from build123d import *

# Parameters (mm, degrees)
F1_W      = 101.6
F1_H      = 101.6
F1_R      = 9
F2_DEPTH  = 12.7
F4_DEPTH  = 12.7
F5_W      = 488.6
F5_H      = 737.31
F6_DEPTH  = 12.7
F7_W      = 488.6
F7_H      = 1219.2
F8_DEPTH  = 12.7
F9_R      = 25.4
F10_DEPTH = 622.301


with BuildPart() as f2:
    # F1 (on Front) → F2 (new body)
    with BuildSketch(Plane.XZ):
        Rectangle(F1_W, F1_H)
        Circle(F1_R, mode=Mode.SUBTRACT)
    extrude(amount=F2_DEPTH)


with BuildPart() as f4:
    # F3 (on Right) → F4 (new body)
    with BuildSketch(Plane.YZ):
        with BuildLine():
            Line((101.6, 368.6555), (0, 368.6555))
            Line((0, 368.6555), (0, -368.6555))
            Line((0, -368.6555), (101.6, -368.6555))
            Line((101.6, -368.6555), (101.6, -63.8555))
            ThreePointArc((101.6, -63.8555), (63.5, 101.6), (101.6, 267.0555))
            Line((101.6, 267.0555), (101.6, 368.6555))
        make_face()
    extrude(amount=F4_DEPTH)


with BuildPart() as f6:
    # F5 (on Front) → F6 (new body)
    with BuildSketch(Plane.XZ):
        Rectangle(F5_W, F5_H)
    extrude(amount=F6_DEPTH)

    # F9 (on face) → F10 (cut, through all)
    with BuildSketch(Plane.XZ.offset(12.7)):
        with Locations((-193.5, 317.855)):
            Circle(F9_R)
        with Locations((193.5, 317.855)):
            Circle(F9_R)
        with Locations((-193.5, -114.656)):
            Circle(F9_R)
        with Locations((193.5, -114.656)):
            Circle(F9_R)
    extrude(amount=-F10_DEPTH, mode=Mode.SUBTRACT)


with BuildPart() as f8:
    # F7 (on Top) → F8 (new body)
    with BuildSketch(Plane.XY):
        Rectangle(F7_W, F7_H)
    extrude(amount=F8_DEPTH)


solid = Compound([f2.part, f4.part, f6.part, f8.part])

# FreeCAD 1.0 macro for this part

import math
import FreeCAD as App
import Part
import Sketcher
Q = App.Units.Quantity

doc = App.newDocument("Part")
params = doc.addObject("Spreadsheet::Sheet", "Params")
for row, (alias, value) in enumerate([
    ("sketch1_width", "4 in"),
    ("pad1_length", "0.5 in"),
    ("sketch2_width", "4 in"),
    ("sketch2_height", "12 in"),
    ("pad2_length", "0.5 in"),
    ("pad3_length", "0.5 in"),
    ("sketch4_diameter", "2 in"),
    ("sketch5_height", "48 in"),
    ("pad4_length", "0.5 in"),
], start=1):
    params.set(f"A{row}", alias)
    params.set(f"B{row}", "=" + value)
    params.setAlias(f"B{row}", alias)

body = doc.addObject("PartDesign::Body", "Body")

# Sketch on XZ plane
sketch1 = body.newObject("Sketcher::SketchObject", "Sketch")
sketch1.AttachmentSupport = (doc.getObject("XZ_Plane"), [""])
sketch1.MapMode = "FlatFace"
sketch1.addGeometry([
    Part.LineSegment(App.Vector(-50.8, 50.8, 0), App.Vector(-50.8, -50.8, 0)),  # 0
    Part.LineSegment(App.Vector(-50.8, -50.8, 0), App.Vector(50.8, -50.8, 0)),  # 1
    Part.LineSegment(App.Vector(50.8, -50.8, 0), App.Vector(50.8, 50.8, 0)),  # 2
    Part.LineSegment(App.Vector(50.8, 50.8, 0), App.Vector(-50.8, 50.8, 0)),  # 3
    Part.Circle(App.Vector(0, 0, 0), App.Vector(0, 0, 1), 9),  # 4
], False)
sketch1.addConstraint([
    Sketcher.Constraint("Coincident", 0, 2, 1, 1),
    Sketcher.Constraint("Coincident", 1, 2, 2, 1),
    Sketcher.Constraint("Coincident", 2, 2, 3, 1),
    Sketcher.Constraint("Coincident", 3, 2, 0, 1),
    Sketcher.Constraint("Vertical", 0),
    Sketcher.Constraint("Horizontal", 1),
    Sketcher.Constraint("Vertical", 2),
    Sketcher.Constraint("Horizontal", 3),
    Sketcher.Constraint("Coincident", 4, 3, -1, 1),
    Sketcher.Constraint("Symmetric", 0, 2, 2, 2, -1, 1),
    Sketcher.Constraint("Equal", 3, 0),
    Sketcher.Constraint("DistanceX", 1, 1, 1, 2, Q("4 in")),
    Sketcher.Constraint("Diameter", 4, 18.0),
])
sketch1.setExpression("Constraints[11]", "Params.sketch1_width")
pad1 = body.newObject("PartDesign::Pad", "Pad")
pad1.Profile = sketch1
pad1.setExpression("Length", "Params.pad1_length")
body2 = doc.addObject("PartDesign::Body", "Body001")

# Sketch on YZ plane
sketch2 = body2.newObject("Sketcher::SketchObject", "Sketch001")
sketch2.AttachmentSupport = (doc.getObject("YZ_Plane001"), [""])
sketch2.MapMode = "FlatFace"
sketch2.addGeometry([
    Part.LineSegment(App.Vector(101.6, 368.6555, 0), App.Vector(0, 368.6555, 0)),  # 0
    Part.LineSegment(App.Vector(0, 368.6555, 0), App.Vector(0, -368.6555, 0)),  # 1
    Part.LineSegment(App.Vector(0, -368.6555, 0), App.Vector(101.6, -368.6555, 0)),  # 2
    Part.LineSegment(App.Vector(101.6, -368.6555, 0), App.Vector(101.6, -63.8555, 0)),  # 3
    Part.ArcOfCircle(Part.Circle(App.Vector(441.808825, 101.6, 0), App.Vector(0, 0, 1), 378.308825), math.radians(154.064718), math.radians(205.935282)),  # 4
    Part.LineSegment(App.Vector(101.6, 267.0555, 0), App.Vector(101.6, 368.6555, 0)),  # 5
], False)
sketch2.addConstraint([
    Sketcher.Constraint("Coincident", 0, 2, 1, 1),
    Sketcher.Constraint("Coincident", 1, 2, 2, 1),
    Sketcher.Constraint("Coincident", 2, 2, 3, 1),
    Sketcher.Constraint("Coincident", 3, 2, 4, 2),
    Sketcher.Constraint("Coincident", 4, 1, 5, 1),
    Sketcher.Constraint("Coincident", 5, 2, 0, 1),
    Sketcher.Constraint("Horizontal", 0),
    Sketcher.Constraint("Vertical", 1),
    Sketcher.Constraint("Horizontal", 2),
    Sketcher.Constraint("Vertical", 3),
    Sketcher.Constraint("Vertical", 5),
    Sketcher.Constraint("Symmetric", 0, 2, 1, 2, -1, 1),
    Sketcher.Constraint("Vertical", 3, 2, 4, 1),
    Sketcher.Constraint("Equal", 2, 5),
    Sketcher.Constraint("DistanceX", 0, 2, 0, 1, Q("4 in")),
    Sketcher.Constraint("DistanceY", 3, 1, 3, 2, Q("12 in")),
    Sketcher.Constraint("DistanceY", 1, 2, 1, 1, 737.311),
    Sketcher.Constraint("Radius", 4, 378.308825),
])
sketch2.setExpression("Constraints[14]", "Params.sketch2_width")
sketch2.setExpression("Constraints[15]", "Params.sketch2_height")
pad2 = body2.newObject("PartDesign::Pad", "Pad001")
pad2.Profile = sketch2
pad2.setExpression("Length", "Params.pad2_length")
body3 = doc.addObject("PartDesign::Body", "Body002")

# Sketch on XZ plane
sketch3 = body3.newObject("Sketcher::SketchObject", "Sketch002")
sketch3.AttachmentSupport = (doc.getObject("XZ_Plane002"), [""])
sketch3.MapMode = "FlatFace"
sketch3.addGeometry([
    Part.LineSegment(App.Vector(-244.3, 368.655, 0), App.Vector(-244.3, -368.655, 0)),
    Part.LineSegment(App.Vector(-244.3, -368.655, 0), App.Vector(244.3, -368.655, 0)),
    Part.LineSegment(App.Vector(244.3, -368.655, 0), App.Vector(244.3, 368.655, 0)),
    Part.LineSegment(App.Vector(244.3, 368.655, 0), App.Vector(-244.3, 368.655, 0)),
], False)
sketch3.addConstraint([
    Sketcher.Constraint("Coincident", 0, 2, 1, 1),
    Sketcher.Constraint("Coincident", 1, 2, 2, 1),
    Sketcher.Constraint("Coincident", 2, 2, 3, 1),
    Sketcher.Constraint("Coincident", 3, 2, 0, 1),
    Sketcher.Constraint("Vertical", 0),
    Sketcher.Constraint("Horizontal", 1),
    Sketcher.Constraint("Vertical", 2),
    Sketcher.Constraint("Horizontal", 3),
    Sketcher.Constraint("Symmetric", 0, 2, 2, 2, -1, 1),
    Sketcher.Constraint("DistanceX", 1, 1, 1, 2, 488.6),
    Sketcher.Constraint("DistanceY", 0, 2, 0, 1, 737.31),
])
pad3 = body3.newObject("PartDesign::Pad", "Pad002")
pad3.Profile = sketch3
pad3.setExpression("Length", "Params.pad3_length")

# Sketch on XZ plane
sketch4 = body3.newObject("Sketcher::SketchObject", "Sketch003")
sketch4.AttachmentSupport = (doc.getObject("XZ_Plane002"), [""])
sketch4.MapMode = "FlatFace"
sketch4.AttachmentOffset = App.Placement(App.Vector(0, 0, 0.5 * 25.4), App.Rotation())
sketch4.addGeometry([
    Part.Circle(App.Vector(-193.5, 317.855, 0), App.Vector(0, 0, 1), 25.4),
    Part.Circle(App.Vector(193.5, 317.855, 0), App.Vector(0, 0, 1), 25.4),
    Part.Circle(App.Vector(-193.5, -114.656, 0), App.Vector(0, 0, 1), 25.4),
    Part.Circle(App.Vector(193.5, -114.656, 0), App.Vector(0, 0, 1), 25.4),
], False)
sketch4.addConstraint([
    Sketcher.Constraint("Equal", 0, 1),
    Sketcher.Constraint("Equal", 1, 2),
    Sketcher.Constraint("Equal", 2, 3),
    Sketcher.Constraint("Symmetric", 0, 3, 1, 3, -2),
    Sketcher.Constraint("Symmetric", 2, 3, 3, 3, -2),
    Sketcher.Constraint("Vertical", 0, 3, 2, 3),
    Sketcher.Constraint("Diameter", 0, Q("2 in")),
    Sketcher.Constraint("DistanceX", 0, 3, -1, 1, 193.5),
    Sketcher.Constraint("DistanceY", -1, 1, 0, 3, 317.855),
    Sketcher.Constraint("DistanceY", 2, 3, -1, 1, 114.656),
])
sketch4.setExpression("Constraints[6]", "Params.sketch4_diameter")
pocket1 = body3.newObject("PartDesign::Pocket", "Pocket")
pocket1.Profile = sketch4
pocket1.Type = "ThroughAll"
body4 = doc.addObject("PartDesign::Body", "Body003")

# Sketch on XY plane
sketch5 = body4.newObject("Sketcher::SketchObject", "Sketch004")
sketch5.AttachmentSupport = (doc.getObject("XY_Plane003"), [""])
sketch5.MapMode = "FlatFace"
sketch5.addGeometry([
    Part.LineSegment(App.Vector(-244.3, 609.6, 0), App.Vector(-244.3, -609.6, 0)),
    Part.LineSegment(App.Vector(-244.3, -609.6, 0), App.Vector(244.3, -609.6, 0)),
    Part.LineSegment(App.Vector(244.3, -609.6, 0), App.Vector(244.3, 609.6, 0)),
    Part.LineSegment(App.Vector(244.3, 609.6, 0), App.Vector(-244.3, 609.6, 0)),
], False)
sketch5.addConstraint([
    Sketcher.Constraint("Coincident", 0, 2, 1, 1),
    Sketcher.Constraint("Coincident", 1, 2, 2, 1),
    Sketcher.Constraint("Coincident", 2, 2, 3, 1),
    Sketcher.Constraint("Coincident", 3, 2, 0, 1),
    Sketcher.Constraint("Vertical", 0),
    Sketcher.Constraint("Horizontal", 1),
    Sketcher.Constraint("Vertical", 2),
    Sketcher.Constraint("Horizontal", 3),
    Sketcher.Constraint("Symmetric", 0, 2, 2, 2, -1, 1),
    Sketcher.Constraint("DistanceY", 0, 2, 0, 1, Q("48 in")),
    Sketcher.Constraint("DistanceX", 1, 1, 1, 2, 488.6),
])
sketch5.setExpression("Constraints[9]", "Params.sketch5_height")
pad4 = body4.newObject("PartDesign::Pad", "Pad003")
pad4.Profile = sketch5
pad4.setExpression("Length", "Params.pad4_length")

doc.recompute()
